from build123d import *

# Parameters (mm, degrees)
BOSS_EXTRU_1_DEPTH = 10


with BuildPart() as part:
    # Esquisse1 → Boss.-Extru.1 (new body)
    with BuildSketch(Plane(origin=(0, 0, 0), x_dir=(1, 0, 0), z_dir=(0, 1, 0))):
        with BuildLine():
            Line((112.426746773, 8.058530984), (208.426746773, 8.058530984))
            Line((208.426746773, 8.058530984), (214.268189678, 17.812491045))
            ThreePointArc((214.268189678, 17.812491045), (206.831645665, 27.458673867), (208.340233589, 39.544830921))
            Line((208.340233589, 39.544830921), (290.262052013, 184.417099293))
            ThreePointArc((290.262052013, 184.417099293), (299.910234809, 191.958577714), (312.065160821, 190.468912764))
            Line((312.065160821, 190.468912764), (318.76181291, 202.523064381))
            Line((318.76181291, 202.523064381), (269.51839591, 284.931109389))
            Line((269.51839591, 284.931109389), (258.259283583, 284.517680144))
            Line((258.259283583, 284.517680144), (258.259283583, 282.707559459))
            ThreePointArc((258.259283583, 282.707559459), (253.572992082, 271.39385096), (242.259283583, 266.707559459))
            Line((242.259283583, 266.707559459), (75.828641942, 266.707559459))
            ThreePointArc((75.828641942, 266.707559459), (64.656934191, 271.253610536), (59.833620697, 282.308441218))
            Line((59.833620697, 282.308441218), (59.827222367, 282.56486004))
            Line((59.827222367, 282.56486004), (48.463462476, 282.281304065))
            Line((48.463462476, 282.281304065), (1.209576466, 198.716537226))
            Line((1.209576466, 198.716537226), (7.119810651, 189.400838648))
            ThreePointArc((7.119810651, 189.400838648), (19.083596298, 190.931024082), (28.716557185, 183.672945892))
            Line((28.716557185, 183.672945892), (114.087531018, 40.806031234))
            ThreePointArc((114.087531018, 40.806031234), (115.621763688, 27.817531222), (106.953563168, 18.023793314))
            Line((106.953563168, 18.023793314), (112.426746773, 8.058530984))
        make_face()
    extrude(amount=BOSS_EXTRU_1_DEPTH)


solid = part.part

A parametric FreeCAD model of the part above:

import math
import FreeCAD as App
import Part
import Sketcher

V = App.Vector

doc = App.newDocument("Part")
body = doc.addObject("PartDesign::Body", "Body")

sketch1 = doc.addObject("Sketcher::SketchObject", "Sketch")
body.addObject(sketch1)
sketch1.AttachmentSupport = (doc.XZ_Plane, [""])
sketch1.MapMode = "FlatFace"
sketch1.addGeometry([
    Part.LineSegment(V(112.426747, -8.058531, 0), V(208.426747, -8.058531, 0)),
    Part.LineSegment(V(208.426747, -8.058531, 0), V(214.26819, -17.812491, 0)),
    Part.ArcOfCircle(Part.Circle(V(222.267695, -31.669183, 0), V(0, 0, 1), 16), math.radians(119.997953), math.radians(209.487126)),
    Part.LineSegment(V(208.340234, -39.544831, 0), V(290.262052, -184.417099, 0)),
    Part.ArcOfCircle(Part.Circle(V(304.189513, -176.541452, 0), V(0, 0, 1), 16), math.radians(-150.512874), math.radians(-60.512874)),
    Part.LineSegment(V(312.065161, -190.468913, 0), V(318.761813, -202.523064, 0)),
    Part.LineSegment(V(318.761813, -202.523064, 0), V(269.518396, -284.931109, 0)),
    Part.LineSegment(V(269.518396, -284.931109, 0), V(258.259284, -284.51768, 0)),
    Part.LineSegment(V(258.259284, -284.51768, 0), V(258.259284, -282.707559, 0)),
    Part.ArcOfCircle(Part.Circle(V(242.259284, -282.707559, 0), V(0, 0, 1), 16), math.radians(0), math.radians(90)),
    Part.LineSegment(V(242.259284, -266.707559, 0), V(75.828642, -266.707559, 0)),
    Part.ArcOfCircle(Part.Circle(V(75.828642, -282.707559, 0), V(0, 0, 1), 16), math.radians(90), math.radians(178.570615)),
    Part.LineSegment(V(59.833621, -282.308441, 0), V(59.827222, -282.56486, 0)),
    Part.LineSegment(V(59.827222, -282.56486, 0), V(48.463462, -282.281304, 0)),
    Part.LineSegment(V(48.463462, -282.281304, 0), V(1.209576, -198.716537, 0)),
    Part.LineSegment(V(1.209576, -198.716537, 0), V(7.119811, -189.400839, 0)),
    Part.ArcOfCircle(Part.Circle(V(14.981883, -175.46571, 0), V(0, 0, 1), 16), math.radians(-119.431294), math.radians(-30.860679)),
    Part.LineSegment(V(28.716557, -183.672946, 0), V(114.087531, -40.806031, 0)),
    Part.ArcOfCircle(Part.Circle(V(100.352857, -32.598795, 0), V(0, 0, 1), 16), math.radians(-30.860679), math.radians(65.635245)),
    Part.LineSegment(V(106.953563, -18.023793, 0), V(112.426747, -8.058531, 0)),
], False)
sketch1.addConstraint([
    Sketcher.Constraint("Coincident", 0, 2, 1, 1),
    Sketcher.Constraint("Coincident", 1, 2, 2, 1),
    Sketcher.Constraint("Coincident", 2, 2, 3, 1),
    Sketcher.Constraint("Coincident", 3, 2, 4, 1),
    Sketcher.Constraint("Coincident", 4, 2, 5, 1),
    Sketcher.Constraint("Coincident", 5, 2, 6, 1),
    Sketcher.Constraint("Coincident", 6, 2, 7, 1),
    Sketcher.Constraint("Coincident", 7, 2, 8, 1),
    Sketcher.Constraint("Coincident", 8, 2, 9, 1),
    Sketcher.Constraint("Coincident", 9, 2, 10, 1),
    Sketcher.Constraint("Coincident", 10, 2, 11, 1),
    Sketcher.Constraint("Coincident", 11, 2, 12, 1),
    Sketcher.Constraint("Coincident", 12, 2, 13, 1),
    Sketcher.Constraint("Coincident", 13, 2, 14, 1),
    Sketcher.Constraint("Coincident", 14, 2, 15, 1),
    Sketcher.Constraint("Coincident", 15, 2, 16, 1),
    Sketcher.Constraint("Coincident", 16, 2, 17, 1),
    Sketcher.Constraint("Coincident", 17, 2, 18, 1),
    Sketcher.Constraint("Coincident", 18, 2, 19, 1),
    Sketcher.Constraint("Coincident", 19, 2, 0, 1),
    Sketcher.Constraint("Horizontal", 0),
    Sketcher.Constraint("Vertical", 8),
    Sketcher.Constraint("Horizontal", 10),
    Sketcher.Constraint("Radius", 2, 16.0),
    Sketcher.Constraint("Radius", 4, 16.0),
    Sketcher.Constraint("Radius", 9, 16.0),
    Sketcher.Constraint("Radius", 11, 16.0),
    Sketcher.Constraint("Radius", 16, 16.0),
    Sketcher.Constraint("Radius", 18, 16.0),
    Sketcher.Constraint("DistanceX", 0, 1, 0, 2, 96.0),
    Sketcher.Constraint("Distance", 6, 96.0),
    Sketcher.Constraint("Distance", 14, 96.0),
    Sketcher.Constraint("DistanceX", 9, 2, 8, 2, 16.0),
    Sketcher.Constraint("DistanceY", 8, 2, 9, 2, 16.0),
    Sketcher.Constraint("DistanceY", 18, 3, 18, 2, 14.575002),
    Sketcher.Constraint("Distance", 7, 11.2667),
    Sketcher.Constraint("Distance", 12, 0.256499),
    Sketcher.Constraint("DistanceX", 10, 2, 10, 1, 166.430642),
    Sketcher.Constraint("DistanceY", 8, 1, 8, 2, 1.810121),
    Sketcher.Constraint("DistanceY", 3, 2, -1, 1, 184.417099),
    Sketcher.Constraint("DistanceX", 16, 3, 9, 3, 227.277401),
    Sketcher.Constraint("DistanceY", 2, 2, 0, 2, 31.4863),
    Sketcher.Constraint("DistanceX", 4, 3, 5, 2, 14.5723),
    Sketcher.Constraint("DistanceX", 12, 2, 11, 2, 0.006398),
    Sketcher.Constraint("DistanceY", 11, 3, 12, 2, 0.142699),
    Sketcher.Constraint("DistanceY", 14, 2, 15, 2, 9.315699),
    Sketcher.Constraint("DistanceY", 17, 2, 2, 2, 1.2612),
    Sketcher.Constraint("Distance", 3, 166.430642),
    Sketcher.Constraint("Distance", 17, 166.430642),
    Sketcher.Constraint("DistanceY", 4, 3, -1, 1, 176.541452),
    Sketcher.Constraint("DistanceY", 9, 3, -1, 1, 282.707559),
    Sketcher.Constraint("DistanceX", -1, 1, 11, 3, 75.828642),
    Sketcher.Constraint("DistanceY", 16, 3, -1, 1, 175.46571),
    Sketcher.Constraint("DistanceY", 0, 2, -1, 1, 8.058531),
    Sketcher.Constraint("DistanceX", -1, 1, 1, 2, 214.26819),
    Sketcher.Constraint("DistanceY", 1, 2, -1, 1, 17.812491),
    Sketcher.Constraint("DistanceX", -1, 1, 4, 2, 312.065161),
    Sketcher.Constraint("DistanceY", 6, 2, -1, 1, 284.931109),
    Sketcher.Constraint("DistanceX", -1, 1, 10, 2, 75.828642),
    Sketcher.Constraint("DistanceX", -1, 1, 15, 2, 7.119811),
    Sketcher.Constraint("DistanceX", -1, 1, 17, 2, 114.087531),
    Sketcher.Constraint("DistanceX", 2, 3, 4, 3, 81.921818),
    Sketcher.Constraint("DistanceY", 18, 3, 2, 3, 0.929612),
    Sketcher.Constraint("DistanceX", 18, 3, 0, 2, 108.07389),
    Sketcher.Constraint("DistanceX", 13, 2, 12, 2, 11.36376),
    Sketcher.Constraint("DistanceX", 14, 2, 16, 2, 27.506981),
])
pad1 = doc.addObject("PartDesign::Pad", "Pad")
body.addObject(pad1)
pad1.Profile = sketch1
pad1.Length = 10
pad1.Reversed = True

doc.recompute()
